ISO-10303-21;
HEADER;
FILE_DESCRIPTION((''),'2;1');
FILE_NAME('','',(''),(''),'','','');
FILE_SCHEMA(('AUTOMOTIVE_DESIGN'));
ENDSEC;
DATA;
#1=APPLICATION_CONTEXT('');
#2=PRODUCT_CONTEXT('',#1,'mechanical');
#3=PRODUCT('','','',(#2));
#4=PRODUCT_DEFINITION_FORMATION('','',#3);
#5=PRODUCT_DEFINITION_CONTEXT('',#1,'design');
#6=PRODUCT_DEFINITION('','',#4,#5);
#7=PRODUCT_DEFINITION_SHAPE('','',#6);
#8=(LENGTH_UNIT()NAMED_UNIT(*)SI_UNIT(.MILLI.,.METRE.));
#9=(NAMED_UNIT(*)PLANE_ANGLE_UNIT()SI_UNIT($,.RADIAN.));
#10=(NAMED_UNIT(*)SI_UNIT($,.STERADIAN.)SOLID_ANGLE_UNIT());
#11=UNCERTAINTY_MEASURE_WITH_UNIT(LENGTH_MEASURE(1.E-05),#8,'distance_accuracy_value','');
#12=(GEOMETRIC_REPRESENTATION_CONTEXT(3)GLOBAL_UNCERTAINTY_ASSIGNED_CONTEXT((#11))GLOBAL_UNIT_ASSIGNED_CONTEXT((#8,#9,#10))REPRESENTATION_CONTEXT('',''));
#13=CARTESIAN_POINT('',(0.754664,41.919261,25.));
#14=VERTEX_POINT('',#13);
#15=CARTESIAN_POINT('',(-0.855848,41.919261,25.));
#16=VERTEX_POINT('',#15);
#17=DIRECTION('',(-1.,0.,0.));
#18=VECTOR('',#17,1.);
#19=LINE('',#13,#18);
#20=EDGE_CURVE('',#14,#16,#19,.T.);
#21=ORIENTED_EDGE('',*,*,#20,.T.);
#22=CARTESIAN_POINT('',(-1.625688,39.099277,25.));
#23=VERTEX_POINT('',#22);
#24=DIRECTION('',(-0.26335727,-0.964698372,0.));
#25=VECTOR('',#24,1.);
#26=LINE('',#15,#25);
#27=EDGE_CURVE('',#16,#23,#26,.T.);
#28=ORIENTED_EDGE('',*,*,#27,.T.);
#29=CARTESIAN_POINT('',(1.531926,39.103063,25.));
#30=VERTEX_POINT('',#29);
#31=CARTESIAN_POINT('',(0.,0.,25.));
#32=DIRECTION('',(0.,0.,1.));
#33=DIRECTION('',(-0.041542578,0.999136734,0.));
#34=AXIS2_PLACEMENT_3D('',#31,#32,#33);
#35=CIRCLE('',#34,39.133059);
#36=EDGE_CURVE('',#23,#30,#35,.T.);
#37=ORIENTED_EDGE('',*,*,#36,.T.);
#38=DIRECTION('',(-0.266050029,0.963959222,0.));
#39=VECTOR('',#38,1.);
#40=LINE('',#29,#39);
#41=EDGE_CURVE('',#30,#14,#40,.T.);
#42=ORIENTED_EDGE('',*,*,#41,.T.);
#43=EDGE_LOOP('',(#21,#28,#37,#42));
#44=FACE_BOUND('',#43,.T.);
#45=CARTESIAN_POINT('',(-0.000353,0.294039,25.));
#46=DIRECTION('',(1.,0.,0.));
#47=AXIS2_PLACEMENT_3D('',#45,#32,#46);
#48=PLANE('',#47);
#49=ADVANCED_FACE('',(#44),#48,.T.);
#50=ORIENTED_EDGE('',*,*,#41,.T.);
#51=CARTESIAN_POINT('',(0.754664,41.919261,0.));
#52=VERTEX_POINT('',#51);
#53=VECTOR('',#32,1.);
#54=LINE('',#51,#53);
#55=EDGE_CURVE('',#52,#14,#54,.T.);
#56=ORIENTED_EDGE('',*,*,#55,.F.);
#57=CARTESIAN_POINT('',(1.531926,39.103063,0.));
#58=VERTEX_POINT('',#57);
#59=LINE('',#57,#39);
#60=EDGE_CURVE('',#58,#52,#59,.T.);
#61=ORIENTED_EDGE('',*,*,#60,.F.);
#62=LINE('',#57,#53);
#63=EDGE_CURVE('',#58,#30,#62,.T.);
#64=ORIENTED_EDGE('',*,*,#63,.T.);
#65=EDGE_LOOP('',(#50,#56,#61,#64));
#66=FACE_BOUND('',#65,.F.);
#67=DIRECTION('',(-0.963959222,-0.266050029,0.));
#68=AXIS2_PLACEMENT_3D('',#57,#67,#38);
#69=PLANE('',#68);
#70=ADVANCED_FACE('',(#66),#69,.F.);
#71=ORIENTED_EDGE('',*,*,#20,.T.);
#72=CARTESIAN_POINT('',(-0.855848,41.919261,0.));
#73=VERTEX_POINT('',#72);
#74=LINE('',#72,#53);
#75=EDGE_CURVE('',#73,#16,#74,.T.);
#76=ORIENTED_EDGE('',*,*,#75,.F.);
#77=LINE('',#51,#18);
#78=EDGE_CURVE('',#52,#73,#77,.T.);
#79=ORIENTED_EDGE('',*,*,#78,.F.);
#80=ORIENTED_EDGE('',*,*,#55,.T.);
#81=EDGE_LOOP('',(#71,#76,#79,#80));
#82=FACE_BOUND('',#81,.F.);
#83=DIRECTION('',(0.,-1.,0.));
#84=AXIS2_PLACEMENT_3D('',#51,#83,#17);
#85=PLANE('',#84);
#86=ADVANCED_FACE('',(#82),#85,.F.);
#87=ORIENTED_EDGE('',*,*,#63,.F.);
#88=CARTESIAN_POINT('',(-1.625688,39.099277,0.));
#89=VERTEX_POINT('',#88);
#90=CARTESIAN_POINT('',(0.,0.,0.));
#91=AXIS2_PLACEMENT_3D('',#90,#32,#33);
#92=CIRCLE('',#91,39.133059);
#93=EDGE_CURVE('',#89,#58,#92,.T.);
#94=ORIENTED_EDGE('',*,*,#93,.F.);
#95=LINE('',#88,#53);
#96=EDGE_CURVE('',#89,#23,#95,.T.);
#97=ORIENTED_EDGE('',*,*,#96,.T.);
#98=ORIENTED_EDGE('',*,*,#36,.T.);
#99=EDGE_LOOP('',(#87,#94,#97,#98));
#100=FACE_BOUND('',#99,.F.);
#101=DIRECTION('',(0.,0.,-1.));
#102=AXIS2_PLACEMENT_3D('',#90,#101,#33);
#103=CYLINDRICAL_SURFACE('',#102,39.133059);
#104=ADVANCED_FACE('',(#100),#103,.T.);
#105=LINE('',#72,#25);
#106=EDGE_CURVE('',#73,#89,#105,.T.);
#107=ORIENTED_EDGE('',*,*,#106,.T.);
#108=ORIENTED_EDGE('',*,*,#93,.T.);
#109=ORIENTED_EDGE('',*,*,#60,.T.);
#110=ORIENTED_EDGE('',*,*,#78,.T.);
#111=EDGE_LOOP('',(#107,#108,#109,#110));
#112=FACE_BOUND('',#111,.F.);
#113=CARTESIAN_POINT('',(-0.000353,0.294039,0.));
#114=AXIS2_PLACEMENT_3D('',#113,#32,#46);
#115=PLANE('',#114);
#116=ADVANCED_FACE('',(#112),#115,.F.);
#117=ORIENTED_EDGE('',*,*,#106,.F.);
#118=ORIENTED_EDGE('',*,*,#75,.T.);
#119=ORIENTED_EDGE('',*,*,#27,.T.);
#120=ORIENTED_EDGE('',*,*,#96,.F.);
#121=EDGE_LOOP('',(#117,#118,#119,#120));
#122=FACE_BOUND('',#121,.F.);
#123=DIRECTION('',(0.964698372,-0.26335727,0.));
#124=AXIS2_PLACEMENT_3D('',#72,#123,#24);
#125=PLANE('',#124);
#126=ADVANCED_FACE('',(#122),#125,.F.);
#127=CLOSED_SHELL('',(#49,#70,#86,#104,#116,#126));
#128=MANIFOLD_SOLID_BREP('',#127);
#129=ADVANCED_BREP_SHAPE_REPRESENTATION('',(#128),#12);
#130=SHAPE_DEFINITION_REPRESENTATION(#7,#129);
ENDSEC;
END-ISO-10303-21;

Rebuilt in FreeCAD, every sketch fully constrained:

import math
import FreeCAD as App
import Part
import Sketcher
from FreeCAD import Vector

doc = App.newDocument("Part")
body = doc.addObject("PartDesign::Body", "Body")

sketch1 = body.newObject("Sketcher::SketchObject", "Sketch")
sketch1.AttachmentSupport = (doc.getObject("XY_Plane"), [""])
sketch1.MapMode = "FlatFace"
sketch1.addGeometry([
    Part.ArcOfCircle(Part.Circle(Vector(0, 0, 0), Vector(0, 0, 1), 39.133059), math.radians(92.3809), math.radians(447.756492)),
    Part.LineSegment(Vector(1.531926, 39.103063, 0), Vector(0.754664, 41.919261, 0)),
    Part.LineSegment(Vector(0.754664, 41.919261, 0), Vector(-0.855848, 41.919261, 0)),
    Part.LineSegment(Vector(-0.855848, 41.919261, 0), Vector(-1.625688, 39.099277, 0)),
], False)
sketch1.addConstraint([
    Sketcher.Constraint("Coincident", 0, 2, 1, 1),
    Sketcher.Constraint("Coincident", 1, 2, 2, 1),
    Sketcher.Constraint("Coincident", 2, 2, 3, 1),
    Sketcher.Constraint("Coincident", 3, 2, 0, 1),
    Sketcher.Constraint("Horizontal", 2),
    Sketcher.Constraint("Coincident", 0, 3, -1, 1),
    Sketcher.Constraint("Radius", 0, 39.133059),
    Sketcher.Constraint("DistanceX", 2, 2, 2, 1, 1.610512),
    Sketcher.Constraint("DistanceY", 0, 2, 1, 2, 2.816198),
    Sketcher.Constraint("Distance", 1, 2.921491),
    Sketcher.Constraint("DistanceY", -1, 1, 1, 2, 41.919261),
    Sketcher.Constraint("DistanceX", 3, 2, -1, 1, 1.625688),
])
pad1 = body.newObject("PartDesign::Pad", "Pad")
pad1.Profile = sketch1
pad1.Length = 25

doc.recompute()
